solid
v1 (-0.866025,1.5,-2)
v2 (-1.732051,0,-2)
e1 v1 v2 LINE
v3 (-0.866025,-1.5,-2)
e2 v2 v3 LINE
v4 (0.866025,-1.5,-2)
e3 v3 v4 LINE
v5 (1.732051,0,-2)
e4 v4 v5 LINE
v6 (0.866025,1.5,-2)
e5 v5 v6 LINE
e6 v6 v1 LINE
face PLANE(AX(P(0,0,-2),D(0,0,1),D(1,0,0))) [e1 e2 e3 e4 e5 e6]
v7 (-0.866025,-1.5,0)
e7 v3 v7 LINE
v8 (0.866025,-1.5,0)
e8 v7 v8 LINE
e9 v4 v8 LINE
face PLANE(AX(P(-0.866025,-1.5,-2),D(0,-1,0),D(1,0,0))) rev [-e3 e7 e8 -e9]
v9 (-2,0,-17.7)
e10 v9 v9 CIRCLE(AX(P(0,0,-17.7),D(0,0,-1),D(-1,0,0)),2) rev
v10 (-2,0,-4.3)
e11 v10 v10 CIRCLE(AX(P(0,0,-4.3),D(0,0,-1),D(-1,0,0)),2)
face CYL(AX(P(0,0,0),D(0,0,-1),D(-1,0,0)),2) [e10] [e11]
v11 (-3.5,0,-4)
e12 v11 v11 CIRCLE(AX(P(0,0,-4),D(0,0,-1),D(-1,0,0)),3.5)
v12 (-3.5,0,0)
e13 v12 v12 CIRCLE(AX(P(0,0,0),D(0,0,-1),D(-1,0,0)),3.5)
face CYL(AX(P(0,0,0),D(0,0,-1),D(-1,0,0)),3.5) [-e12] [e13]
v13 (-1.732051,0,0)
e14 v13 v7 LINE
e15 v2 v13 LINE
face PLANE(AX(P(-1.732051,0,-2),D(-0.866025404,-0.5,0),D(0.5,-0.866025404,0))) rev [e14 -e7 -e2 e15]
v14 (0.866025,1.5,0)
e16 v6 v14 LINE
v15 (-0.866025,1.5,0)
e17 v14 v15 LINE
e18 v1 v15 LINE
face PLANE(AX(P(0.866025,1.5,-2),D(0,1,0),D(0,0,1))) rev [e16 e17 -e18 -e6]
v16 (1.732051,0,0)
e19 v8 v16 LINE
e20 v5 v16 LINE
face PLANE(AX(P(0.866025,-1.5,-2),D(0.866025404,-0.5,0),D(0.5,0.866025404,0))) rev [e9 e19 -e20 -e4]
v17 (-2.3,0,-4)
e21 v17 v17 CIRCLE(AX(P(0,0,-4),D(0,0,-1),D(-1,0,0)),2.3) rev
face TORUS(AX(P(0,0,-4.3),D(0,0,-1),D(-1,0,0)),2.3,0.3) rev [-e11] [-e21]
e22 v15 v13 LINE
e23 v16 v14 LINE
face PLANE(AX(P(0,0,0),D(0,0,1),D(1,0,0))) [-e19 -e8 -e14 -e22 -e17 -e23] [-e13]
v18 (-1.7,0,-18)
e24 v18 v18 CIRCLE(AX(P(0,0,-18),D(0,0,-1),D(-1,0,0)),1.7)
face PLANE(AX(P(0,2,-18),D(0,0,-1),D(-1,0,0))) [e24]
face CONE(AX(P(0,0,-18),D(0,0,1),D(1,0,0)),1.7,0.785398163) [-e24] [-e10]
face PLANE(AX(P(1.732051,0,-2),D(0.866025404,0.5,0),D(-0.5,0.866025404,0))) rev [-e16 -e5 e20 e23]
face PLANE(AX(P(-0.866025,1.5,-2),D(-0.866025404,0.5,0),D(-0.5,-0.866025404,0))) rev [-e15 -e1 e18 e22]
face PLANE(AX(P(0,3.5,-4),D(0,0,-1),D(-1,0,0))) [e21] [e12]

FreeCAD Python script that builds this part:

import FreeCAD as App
import Part
import Sketcher
Q = App.Units.Quantity


def edges_at(feature, points):
    """Names of the edges that pass closest to the given points."""
    edges = feature.Shape.Edges
    near = lambda p: min(range(len(edges)), key=lambda i: edges[i].distToShape(Part.Vertex(*p))[0])
    return sorted({f"Edge{near(p) + 1}" for p in points})

doc = App.newDocument("Part")
body = doc.addObject("PartDesign::Body", "Body")

# Sketch on YZ plane
sketch1 = doc.addObject("Sketcher::SketchObject", "Sketch")
body.addObject(sketch1)
sketch1.AttachmentSupport = (doc.YZ_Plane, [""])
sketch1.MapMode = "FlatFace"
sketch1.addGeometry(Part.LineSegment(App.Vector(3.5, 0, 0), App.Vector(0, 0, 0)), False)
sketch1.addGeometry(Part.LineSegment(App.Vector(0, 0, 0), App.Vector(0, -18, 0)), False)
sketch1.addGeometry(Part.LineSegment(App.Vector(0, -18, 0), App.Vector(2, -18, 0)), False)
sketch1.addGeometry(Part.LineSegment(App.Vector(2, -18, 0), App.Vector(2, -4, 0)), False)
sketch1.addGeometry(Part.LineSegment(App.Vector(2, -4, 0), App.Vector(3.5, -4, 0)), False)
sketch1.addGeometry(Part.LineSegment(App.Vector(3.5, -4, 0), App.Vector(3.5, 0, 0)), False)
sketch1.addConstraint(Sketcher.Constraint("Coincident", 0, 2, 1, 1))
sketch1.addConstraint(Sketcher.Constraint("Coincident", 1, 2, 2, 1))
sketch1.addConstraint(Sketcher.Constraint("Coincident", 2, 2, 3, 1))
sketch1.addConstraint(Sketcher.Constraint("Coincident", 3, 2, 4, 1))
sketch1.addConstraint(Sketcher.Constraint("Coincident", 4, 2, 5, 1))
sketch1.addConstraint(Sketcher.Constraint("Coincident", 5, 2, 0, 1))
sketch1.addConstraint(Sketcher.Constraint("Horizontal", 0))
sketch1.addConstraint(Sketcher.Constraint("Vertical", 1))
sketch1.addConstraint(Sketcher.Constraint("Horizontal", 2))
sketch1.addConstraint(Sketcher.Constraint("Vertical", 3))
sketch1.addConstraint(Sketcher.Constraint("Horizontal", 4))
sketch1.addConstraint(Sketcher.Constraint("Vertical", 5))
sketch1.addConstraint(Sketcher.Constraint("Coincident", 0, 2, -1, 1))
sketch1.addConstraint(Sketcher.Constraint("DistanceX", 2, 1, 2, 2, Q("2 mm")))
sketch1.addConstraint(Sketcher.Constraint("DistanceY", 1, 2, 1, 1, Q("18 mm")))
sketch1.addConstraint(Sketcher.Constraint("DistanceY", 3, 1, 3, 2, Q("14 mm")))
sketch1.addConstraint(Sketcher.Constraint("DistanceX", 0, 2, 0, 1, Q("3.5 mm")))
revolution = doc.addObject("PartDesign::Revolution", "Revolution")
body.addObject(revolution)
revolution.Profile = sketch1
revolution.ReferenceAxis = (sketch1, ["V_Axis"])
revolution.Angle = 360

# Sketch on XY plane
sketch2 = doc.addObject("Sketcher::SketchObject", "Sketch001")
body.addObject(sketch2)
sketch2.AttachmentSupport = (doc.XY_Plane, [""])
sketch2.MapMode = "FlatFace"
sketch2.addGeometry(Part.LineSegment(App.Vector(1.7, 0, 0), App.Vector(0.9, 1.5, 0)), False)
sketch2.addGeometry(Part.LineSegment(App.Vector(0.9, 1.5, 0), App.Vector(-0.9, 1.5, 0)), False)
sketch2.addGeometry(Part.LineSegment(App.Vector(-0.9, 1.5, 0), App.Vector(-1.7, 0, 0)), False)
sketch2.addGeometry(Part.LineSegment(App.Vector(-1.7, 0, 0), App.Vector(-0.9, -1.5, 0)), False)
sketch2.addGeometry(Part.LineSegment(App.Vector(-0.9, -1.5, 0), App.Vector(0.9, -1.5, 0)), False)
sketch2.addGeometry(Part.LineSegment(App.Vector(0.9, -1.5, 0), App.Vector(1.7, 0, 0)), False)
sketch2.addConstraint(Sketcher.Constraint("Coincident", 0, 2, 1, 1))
sketch2.addConstraint(Sketcher.Constraint("Coincident", 1, 2, 2, 1))
sketch2.addConstraint(Sketcher.Constraint("Coincident", 2, 2, 3, 1))
sketch2.addConstraint(Sketcher.Constraint("Coincident", 3, 2, 4, 1))
sketch2.addConstraint(Sketcher.Constraint("Coincident", 4, 2, 5, 1))
sketch2.addConstraint(Sketcher.Constraint("Coincident", 5, 2, 0, 1))
sketch2.addConstraint(Sketcher.Constraint("Horizontal", 1))
sketch2.addConstraint(Sketcher.Constraint("Horizontal", 4))
sketch2.addConstraint(Sketcher.Constraint("Symmetric", 0, 2, 3, 2, -1, 1))
sketch2.addConstraint(Sketcher.Constraint("Symmetric", 2, 2, 5, 2, -1, 1))
sketch2.addConstraint(Sketcher.Constraint("PointOnObject", 2, 2, -1))
sketch2.addConstraint(Sketcher.Constraint("Parallel", 2, 5))
sketch2.addConstraint(Sketcher.Constraint("Vertical", 1, 2, 3, 2))
sketch2.addConstraint(Sketcher.Constraint("Angle", 0, Q("120 deg")))
sketch2.addConstraint(Sketcher.Constraint("DistanceY", 3, 2, 1, 2, Q("3 mm")))
sketch2.addConstraint(Sketcher.Constraint("DistanceX", 1, 2, 1, 1, Q("1.732051 mm")))
pocket1 = doc.addObject("PartDesign::Pocket", "Pocket")
body.addObject(pocket1)
pocket1.Profile = sketch2
pocket1.Length = 2
doc.recompute()

fillet = doc.addObject("PartDesign::Fillet", "Fillet")
body.addObject(fillet)
fillet.Base = (pocket1, edges_at(pocket1, [(0, -2, -4)]))
fillet.Radius = 0.3
doc.recompute()

chamfer = doc.addObject("PartDesign::Chamfer", "Chamfer")
body.addObject(chamfer)
chamfer.Base = (fillet, edges_at(fillet, [(0, -2, -18)]))
chamfer.Size = 0.3

doc.recompute()
